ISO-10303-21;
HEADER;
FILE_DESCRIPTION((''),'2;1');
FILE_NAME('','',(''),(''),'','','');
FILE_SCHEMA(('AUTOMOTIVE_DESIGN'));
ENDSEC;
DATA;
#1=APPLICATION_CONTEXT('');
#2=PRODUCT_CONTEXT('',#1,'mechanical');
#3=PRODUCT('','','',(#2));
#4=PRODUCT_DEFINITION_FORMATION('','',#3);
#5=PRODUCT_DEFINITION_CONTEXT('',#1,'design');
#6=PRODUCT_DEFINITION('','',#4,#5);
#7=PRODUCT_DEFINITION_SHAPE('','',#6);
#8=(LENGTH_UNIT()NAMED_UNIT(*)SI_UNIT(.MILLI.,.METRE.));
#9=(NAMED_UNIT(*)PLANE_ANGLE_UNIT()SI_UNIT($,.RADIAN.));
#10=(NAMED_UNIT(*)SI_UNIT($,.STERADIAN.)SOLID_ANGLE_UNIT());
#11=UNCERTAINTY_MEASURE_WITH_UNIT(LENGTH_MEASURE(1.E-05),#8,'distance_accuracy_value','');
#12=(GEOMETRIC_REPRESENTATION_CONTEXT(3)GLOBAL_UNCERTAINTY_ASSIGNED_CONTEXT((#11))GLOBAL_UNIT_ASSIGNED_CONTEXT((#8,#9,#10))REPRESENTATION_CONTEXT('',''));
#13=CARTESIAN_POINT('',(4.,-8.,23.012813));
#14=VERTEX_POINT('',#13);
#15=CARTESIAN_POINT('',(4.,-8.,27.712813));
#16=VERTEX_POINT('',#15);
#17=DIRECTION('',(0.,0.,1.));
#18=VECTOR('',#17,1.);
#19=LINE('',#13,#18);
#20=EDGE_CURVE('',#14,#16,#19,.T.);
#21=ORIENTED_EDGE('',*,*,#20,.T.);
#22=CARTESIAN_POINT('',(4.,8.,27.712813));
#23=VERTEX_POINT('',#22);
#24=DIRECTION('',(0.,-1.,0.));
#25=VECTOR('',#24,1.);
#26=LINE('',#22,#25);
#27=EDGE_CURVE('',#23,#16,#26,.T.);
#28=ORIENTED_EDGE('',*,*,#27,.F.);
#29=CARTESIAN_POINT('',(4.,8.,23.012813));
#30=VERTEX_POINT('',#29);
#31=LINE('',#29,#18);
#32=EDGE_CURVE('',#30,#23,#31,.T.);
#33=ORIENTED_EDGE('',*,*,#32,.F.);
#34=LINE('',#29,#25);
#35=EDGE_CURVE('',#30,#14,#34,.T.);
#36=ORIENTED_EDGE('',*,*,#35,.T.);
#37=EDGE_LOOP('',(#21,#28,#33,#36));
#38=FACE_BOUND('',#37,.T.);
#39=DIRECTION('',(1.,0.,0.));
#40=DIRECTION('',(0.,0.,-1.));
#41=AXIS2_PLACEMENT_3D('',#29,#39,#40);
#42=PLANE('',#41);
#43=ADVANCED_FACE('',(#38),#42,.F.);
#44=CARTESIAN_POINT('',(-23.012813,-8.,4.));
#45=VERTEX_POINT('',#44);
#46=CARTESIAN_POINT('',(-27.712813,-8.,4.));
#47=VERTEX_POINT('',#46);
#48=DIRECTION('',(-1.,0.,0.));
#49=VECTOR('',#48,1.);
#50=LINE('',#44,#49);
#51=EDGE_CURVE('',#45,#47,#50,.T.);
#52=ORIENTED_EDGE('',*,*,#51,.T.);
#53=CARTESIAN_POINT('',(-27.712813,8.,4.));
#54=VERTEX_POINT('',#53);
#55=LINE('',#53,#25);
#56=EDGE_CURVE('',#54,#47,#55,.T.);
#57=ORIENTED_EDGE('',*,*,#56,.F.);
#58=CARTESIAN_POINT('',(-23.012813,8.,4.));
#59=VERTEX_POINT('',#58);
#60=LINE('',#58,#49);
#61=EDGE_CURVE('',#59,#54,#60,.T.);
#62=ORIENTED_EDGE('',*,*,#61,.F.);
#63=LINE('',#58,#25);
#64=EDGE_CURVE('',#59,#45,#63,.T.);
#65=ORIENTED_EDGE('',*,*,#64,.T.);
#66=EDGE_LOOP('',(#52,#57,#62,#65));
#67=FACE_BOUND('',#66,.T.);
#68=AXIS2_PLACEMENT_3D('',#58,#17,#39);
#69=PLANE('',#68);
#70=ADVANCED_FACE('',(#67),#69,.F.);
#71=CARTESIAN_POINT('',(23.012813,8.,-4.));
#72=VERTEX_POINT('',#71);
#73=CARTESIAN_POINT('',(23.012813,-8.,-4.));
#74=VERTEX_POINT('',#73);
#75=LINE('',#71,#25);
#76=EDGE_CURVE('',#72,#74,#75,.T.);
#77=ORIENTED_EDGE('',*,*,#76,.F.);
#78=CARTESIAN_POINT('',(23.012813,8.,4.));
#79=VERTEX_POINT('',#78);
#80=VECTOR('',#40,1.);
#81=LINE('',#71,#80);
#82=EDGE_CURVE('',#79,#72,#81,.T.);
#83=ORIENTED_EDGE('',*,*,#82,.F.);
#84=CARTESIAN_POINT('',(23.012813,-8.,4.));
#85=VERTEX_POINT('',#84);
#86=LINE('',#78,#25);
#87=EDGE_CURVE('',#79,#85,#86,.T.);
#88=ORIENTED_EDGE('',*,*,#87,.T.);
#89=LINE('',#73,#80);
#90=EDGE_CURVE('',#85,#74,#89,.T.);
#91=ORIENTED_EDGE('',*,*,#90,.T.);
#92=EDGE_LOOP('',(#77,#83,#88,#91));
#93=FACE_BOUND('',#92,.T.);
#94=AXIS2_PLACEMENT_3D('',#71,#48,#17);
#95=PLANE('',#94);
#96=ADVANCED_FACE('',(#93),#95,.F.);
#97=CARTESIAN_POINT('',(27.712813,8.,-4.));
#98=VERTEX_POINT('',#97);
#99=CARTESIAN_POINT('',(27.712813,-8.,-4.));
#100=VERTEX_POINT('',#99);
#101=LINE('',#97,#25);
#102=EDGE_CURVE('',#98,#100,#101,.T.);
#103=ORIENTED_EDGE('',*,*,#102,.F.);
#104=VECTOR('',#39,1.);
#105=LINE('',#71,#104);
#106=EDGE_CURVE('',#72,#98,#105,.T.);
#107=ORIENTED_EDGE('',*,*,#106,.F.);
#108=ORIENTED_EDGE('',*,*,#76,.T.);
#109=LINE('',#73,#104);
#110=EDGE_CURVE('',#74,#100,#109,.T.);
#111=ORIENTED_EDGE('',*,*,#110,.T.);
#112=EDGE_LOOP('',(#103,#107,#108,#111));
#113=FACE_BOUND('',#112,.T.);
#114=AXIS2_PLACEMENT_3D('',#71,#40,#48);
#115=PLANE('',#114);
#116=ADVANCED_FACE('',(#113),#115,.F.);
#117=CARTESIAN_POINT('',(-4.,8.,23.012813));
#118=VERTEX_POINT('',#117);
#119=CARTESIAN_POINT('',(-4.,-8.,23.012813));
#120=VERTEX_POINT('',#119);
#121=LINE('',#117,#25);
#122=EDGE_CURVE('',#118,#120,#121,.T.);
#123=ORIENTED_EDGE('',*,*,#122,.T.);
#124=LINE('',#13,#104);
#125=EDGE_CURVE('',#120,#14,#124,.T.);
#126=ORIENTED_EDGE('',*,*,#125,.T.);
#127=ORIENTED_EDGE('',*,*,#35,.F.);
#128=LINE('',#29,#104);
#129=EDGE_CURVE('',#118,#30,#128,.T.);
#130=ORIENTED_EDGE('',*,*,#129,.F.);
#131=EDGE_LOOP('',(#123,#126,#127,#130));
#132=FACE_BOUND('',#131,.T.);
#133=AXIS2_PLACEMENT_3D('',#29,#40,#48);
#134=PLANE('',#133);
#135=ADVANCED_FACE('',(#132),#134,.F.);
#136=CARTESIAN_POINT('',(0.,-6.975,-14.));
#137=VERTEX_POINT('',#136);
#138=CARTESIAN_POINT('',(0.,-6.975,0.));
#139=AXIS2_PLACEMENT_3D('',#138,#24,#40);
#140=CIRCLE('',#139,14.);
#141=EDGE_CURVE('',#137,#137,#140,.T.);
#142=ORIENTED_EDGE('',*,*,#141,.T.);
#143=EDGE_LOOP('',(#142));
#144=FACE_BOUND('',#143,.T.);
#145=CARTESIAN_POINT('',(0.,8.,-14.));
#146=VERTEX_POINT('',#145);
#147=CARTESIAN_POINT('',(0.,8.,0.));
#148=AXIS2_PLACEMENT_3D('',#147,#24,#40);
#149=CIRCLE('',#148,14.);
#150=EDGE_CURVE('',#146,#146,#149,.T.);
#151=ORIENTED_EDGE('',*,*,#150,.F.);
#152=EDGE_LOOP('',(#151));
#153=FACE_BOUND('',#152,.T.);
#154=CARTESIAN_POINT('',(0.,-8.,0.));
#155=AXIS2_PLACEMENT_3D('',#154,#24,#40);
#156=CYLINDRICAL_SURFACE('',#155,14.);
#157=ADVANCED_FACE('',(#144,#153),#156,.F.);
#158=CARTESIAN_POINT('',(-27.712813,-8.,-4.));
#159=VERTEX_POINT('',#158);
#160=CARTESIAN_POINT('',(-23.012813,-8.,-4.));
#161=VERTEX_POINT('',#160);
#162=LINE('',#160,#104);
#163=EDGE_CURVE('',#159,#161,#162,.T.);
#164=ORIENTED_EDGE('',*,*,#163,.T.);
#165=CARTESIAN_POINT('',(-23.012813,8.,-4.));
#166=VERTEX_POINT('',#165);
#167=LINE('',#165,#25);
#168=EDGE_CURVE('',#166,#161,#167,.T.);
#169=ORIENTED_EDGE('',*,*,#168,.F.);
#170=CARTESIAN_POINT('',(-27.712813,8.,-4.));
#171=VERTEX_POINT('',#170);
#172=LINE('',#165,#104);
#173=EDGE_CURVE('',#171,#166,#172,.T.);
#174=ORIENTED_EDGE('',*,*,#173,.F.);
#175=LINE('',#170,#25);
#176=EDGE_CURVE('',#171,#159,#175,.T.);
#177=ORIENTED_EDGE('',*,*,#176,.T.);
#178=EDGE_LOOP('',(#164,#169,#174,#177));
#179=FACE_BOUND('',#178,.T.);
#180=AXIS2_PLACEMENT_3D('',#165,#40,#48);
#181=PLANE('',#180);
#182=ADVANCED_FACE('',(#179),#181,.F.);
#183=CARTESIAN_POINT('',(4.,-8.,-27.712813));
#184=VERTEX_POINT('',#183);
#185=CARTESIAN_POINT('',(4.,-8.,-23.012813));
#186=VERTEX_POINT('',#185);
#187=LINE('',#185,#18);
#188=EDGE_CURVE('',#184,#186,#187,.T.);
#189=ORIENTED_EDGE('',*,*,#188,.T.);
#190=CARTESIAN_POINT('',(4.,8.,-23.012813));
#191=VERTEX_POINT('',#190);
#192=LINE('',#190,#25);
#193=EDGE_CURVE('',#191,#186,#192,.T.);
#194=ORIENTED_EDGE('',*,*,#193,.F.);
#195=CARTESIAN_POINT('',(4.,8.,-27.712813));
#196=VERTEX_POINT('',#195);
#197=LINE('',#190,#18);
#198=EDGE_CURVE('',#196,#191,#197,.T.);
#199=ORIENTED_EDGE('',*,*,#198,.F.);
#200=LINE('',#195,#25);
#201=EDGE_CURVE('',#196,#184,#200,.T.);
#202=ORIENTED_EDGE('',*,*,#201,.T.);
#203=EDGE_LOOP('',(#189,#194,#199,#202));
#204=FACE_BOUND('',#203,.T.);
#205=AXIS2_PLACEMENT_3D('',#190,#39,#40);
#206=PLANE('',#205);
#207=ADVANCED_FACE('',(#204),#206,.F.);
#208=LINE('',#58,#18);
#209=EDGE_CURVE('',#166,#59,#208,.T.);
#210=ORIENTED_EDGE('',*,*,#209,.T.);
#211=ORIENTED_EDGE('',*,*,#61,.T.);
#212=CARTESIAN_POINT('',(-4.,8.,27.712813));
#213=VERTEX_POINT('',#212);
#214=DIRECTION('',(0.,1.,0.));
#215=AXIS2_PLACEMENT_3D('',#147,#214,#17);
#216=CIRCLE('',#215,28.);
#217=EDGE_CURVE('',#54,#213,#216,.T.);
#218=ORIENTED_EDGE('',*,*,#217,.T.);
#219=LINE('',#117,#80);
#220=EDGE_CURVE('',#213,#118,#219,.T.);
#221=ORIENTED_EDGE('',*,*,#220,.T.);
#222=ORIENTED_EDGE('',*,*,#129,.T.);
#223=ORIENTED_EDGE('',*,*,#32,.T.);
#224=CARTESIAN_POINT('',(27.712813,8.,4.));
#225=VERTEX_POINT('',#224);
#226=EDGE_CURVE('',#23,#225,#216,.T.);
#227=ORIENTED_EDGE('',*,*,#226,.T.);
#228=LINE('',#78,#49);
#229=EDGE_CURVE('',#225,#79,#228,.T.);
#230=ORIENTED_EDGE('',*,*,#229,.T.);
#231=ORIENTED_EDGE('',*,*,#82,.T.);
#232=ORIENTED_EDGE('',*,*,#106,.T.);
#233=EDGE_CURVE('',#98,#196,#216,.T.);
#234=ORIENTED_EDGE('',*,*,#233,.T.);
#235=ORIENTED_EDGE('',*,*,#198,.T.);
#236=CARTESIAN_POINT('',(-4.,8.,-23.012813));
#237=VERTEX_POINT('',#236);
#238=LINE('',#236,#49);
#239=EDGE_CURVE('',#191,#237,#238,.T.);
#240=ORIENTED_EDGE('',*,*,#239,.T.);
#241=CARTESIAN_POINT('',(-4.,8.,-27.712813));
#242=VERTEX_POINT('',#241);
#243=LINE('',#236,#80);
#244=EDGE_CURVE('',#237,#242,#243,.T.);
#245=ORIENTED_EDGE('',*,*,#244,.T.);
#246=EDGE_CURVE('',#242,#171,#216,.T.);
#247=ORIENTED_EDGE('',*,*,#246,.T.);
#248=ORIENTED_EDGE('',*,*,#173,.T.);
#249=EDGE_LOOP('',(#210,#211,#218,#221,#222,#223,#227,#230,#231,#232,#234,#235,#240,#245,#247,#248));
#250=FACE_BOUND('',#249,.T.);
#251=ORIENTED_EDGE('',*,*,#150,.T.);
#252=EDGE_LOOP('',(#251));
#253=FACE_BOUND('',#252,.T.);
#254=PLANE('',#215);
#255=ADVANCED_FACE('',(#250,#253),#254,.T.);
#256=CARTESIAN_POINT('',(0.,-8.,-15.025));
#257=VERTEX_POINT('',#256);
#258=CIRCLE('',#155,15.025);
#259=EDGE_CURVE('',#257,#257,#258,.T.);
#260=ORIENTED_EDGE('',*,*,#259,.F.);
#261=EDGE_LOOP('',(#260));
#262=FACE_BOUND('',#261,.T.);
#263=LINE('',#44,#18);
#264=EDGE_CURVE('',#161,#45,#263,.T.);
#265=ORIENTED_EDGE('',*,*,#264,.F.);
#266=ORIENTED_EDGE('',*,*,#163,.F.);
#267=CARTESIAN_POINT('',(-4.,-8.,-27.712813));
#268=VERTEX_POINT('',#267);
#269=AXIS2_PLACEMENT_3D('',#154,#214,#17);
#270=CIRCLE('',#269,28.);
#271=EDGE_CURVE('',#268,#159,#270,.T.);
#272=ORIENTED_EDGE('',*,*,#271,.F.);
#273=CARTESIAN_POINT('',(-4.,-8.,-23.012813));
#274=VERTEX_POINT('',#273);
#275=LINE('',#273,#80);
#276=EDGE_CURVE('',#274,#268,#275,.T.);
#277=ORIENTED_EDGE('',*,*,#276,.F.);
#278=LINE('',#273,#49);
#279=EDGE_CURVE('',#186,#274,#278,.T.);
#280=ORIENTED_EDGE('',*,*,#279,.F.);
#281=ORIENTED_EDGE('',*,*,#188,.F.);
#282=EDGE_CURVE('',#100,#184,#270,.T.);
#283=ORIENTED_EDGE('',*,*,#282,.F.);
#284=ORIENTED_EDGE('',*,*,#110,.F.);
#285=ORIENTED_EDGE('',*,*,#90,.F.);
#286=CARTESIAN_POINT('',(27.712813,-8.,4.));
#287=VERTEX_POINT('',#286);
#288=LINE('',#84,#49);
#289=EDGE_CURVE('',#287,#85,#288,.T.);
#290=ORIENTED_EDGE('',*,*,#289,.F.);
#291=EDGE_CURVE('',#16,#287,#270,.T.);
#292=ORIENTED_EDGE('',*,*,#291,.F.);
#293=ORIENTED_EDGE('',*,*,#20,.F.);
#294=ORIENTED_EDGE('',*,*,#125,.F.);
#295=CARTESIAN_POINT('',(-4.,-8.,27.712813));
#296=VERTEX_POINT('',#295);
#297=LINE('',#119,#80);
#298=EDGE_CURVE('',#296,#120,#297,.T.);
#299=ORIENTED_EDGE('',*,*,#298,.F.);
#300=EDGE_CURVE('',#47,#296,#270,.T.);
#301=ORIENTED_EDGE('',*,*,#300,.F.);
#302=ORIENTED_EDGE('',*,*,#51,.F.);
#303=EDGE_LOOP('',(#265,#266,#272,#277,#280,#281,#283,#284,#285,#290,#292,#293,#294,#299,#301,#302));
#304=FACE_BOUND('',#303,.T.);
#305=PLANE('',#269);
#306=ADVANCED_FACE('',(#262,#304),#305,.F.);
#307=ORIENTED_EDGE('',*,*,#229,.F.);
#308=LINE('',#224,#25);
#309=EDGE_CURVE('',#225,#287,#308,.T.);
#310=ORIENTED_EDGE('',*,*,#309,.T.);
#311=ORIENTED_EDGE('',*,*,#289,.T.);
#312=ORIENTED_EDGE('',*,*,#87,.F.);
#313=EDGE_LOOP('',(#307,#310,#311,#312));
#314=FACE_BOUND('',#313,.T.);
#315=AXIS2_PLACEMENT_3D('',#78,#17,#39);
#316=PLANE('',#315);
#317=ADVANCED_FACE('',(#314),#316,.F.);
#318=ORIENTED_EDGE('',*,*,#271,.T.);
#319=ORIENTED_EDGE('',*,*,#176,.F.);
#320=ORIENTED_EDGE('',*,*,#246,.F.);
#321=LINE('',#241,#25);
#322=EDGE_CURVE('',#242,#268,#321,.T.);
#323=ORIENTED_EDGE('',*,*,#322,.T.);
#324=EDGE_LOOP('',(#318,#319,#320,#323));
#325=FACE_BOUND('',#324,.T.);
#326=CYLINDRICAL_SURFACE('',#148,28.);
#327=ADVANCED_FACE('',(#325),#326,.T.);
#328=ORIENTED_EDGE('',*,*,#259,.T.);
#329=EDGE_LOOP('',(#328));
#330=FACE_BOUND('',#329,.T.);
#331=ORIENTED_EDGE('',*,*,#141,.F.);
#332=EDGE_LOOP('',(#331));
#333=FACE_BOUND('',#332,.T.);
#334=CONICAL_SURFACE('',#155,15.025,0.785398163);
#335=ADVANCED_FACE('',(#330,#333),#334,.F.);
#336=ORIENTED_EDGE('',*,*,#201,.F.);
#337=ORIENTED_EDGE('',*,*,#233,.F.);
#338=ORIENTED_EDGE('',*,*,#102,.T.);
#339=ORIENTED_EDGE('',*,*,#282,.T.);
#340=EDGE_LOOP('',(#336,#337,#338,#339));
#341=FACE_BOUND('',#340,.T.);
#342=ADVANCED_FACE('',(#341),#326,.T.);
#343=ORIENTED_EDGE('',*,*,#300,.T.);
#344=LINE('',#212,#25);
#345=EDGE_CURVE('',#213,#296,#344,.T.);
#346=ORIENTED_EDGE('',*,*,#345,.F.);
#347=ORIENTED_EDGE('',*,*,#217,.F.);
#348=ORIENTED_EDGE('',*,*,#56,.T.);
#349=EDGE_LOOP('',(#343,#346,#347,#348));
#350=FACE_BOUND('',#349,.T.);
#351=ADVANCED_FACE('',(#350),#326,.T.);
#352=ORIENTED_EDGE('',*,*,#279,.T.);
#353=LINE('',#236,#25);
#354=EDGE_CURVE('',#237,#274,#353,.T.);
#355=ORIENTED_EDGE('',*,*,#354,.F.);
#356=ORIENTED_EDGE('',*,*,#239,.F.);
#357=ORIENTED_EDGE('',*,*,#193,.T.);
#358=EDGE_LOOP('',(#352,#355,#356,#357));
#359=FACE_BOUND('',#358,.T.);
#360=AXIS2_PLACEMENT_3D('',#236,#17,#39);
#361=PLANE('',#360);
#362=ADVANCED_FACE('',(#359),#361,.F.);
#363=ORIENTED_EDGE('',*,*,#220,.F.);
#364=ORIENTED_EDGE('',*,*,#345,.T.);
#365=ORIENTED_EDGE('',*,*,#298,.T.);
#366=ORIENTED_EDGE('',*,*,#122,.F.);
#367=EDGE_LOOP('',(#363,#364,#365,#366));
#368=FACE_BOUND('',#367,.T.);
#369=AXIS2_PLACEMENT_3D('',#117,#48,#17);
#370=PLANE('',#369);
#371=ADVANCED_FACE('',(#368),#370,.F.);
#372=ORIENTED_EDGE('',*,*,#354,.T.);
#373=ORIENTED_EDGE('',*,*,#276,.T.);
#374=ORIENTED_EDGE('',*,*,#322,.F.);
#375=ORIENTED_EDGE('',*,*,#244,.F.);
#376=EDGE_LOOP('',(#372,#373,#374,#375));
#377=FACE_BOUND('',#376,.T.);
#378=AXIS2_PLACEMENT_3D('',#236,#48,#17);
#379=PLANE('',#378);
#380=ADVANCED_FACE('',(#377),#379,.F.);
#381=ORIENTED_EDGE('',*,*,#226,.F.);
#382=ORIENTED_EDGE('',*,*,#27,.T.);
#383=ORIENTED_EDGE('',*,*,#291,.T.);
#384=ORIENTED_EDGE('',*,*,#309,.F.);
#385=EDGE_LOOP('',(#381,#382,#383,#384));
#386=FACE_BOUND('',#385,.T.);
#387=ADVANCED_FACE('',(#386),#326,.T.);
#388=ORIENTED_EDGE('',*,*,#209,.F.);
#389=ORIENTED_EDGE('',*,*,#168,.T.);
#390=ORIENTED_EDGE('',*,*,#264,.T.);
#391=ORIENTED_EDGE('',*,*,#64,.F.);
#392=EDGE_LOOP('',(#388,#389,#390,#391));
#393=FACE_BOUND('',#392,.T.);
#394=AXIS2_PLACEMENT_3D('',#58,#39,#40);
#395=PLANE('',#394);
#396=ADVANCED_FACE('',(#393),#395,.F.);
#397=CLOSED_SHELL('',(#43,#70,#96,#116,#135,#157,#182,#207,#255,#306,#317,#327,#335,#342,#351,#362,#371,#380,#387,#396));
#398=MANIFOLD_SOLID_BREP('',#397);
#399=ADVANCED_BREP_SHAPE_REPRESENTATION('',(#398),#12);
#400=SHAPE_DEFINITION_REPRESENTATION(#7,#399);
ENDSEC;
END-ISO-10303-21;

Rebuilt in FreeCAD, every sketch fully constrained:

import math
import FreeCAD as App
import Part
import Sketcher
from FreeCAD import Vector

doc = App.newDocument("Part")
params = doc.addObject("Spreadsheet::Sheet", "Params")
for row, (alias, value) in enumerate([
    ("sketch1_radius", "28 mm"),
    ("sketch1_width", "8 mm"),
    ("sketch1_width2", "4.7 mm"),
    ("pad1_length", "16 mm"),
    ("sketch2_diameter", "28 mm"),
    ("hole_diameter", "28 mm"),
    ("hole_depth", "16 mm"),
    ("hole_csink_diameter", "30.05 mm"),
], start=1):
    params.set(f"A{row}", alias)
    params.set(f"B{row}", "=" + value)
    params.setAlias(f"B{row}", alias)

body = doc.addObject("PartDesign::Body", "Body")

# Sketch on XZ plane
sketch1 = body.newObject("Sketcher::SketchObject", "Sketch")
sketch1.AttachmentSupport = (doc.getObject("XZ_Plane"), [""])
sketch1.MapMode = "FlatFace"
sketch1.addGeometry(Part.LineSegment(Vector(4, 23, 0), Vector(4, 27.7, 0)), False)
sketch1.addGeometry(Part.ArcOfCircle(Part.Circle(Vector(0, 0, 0), Vector(0, 0, 1), 28), math.radians(8), math.radians(82)), False)
sketch1.addGeometry(Part.LineSegment(Vector(27.7, 4, 0), Vector(23, 4, 0)), False)
sketch1.addGeometry(Part.LineSegment(Vector(23, 4, 0), Vector(23, -4, 0)), False)
sketch1.addGeometry(Part.LineSegment(Vector(23, -4, 0), Vector(27.7, -4, 0)), False)
sketch1.addGeometry(Part.ArcOfCircle(Part.Circle(Vector(0, 0, 0), Vector(0, 0, 1), 28), math.radians(-82), math.radians(-8)), False)
sketch1.addGeometry(Part.LineSegment(Vector(4, -27.7, 0), Vector(4, -23, 0)), False)
sketch1.addGeometry(Part.LineSegment(Vector(4, -23, 0), Vector(-4, -23, 0)), False)
sketch1.addGeometry(Part.LineSegment(Vector(-4, -23, 0), Vector(-4, -27.7, 0)), False)
sketch1.addGeometry(Part.ArcOfCircle(Part.Circle(Vector(0, 0, 0), Vector(0, 0, 1), 28), math.radians(-172), math.radians(-98)), False)
sketch1.addGeometry(Part.LineSegment(Vector(-27.7, -4, 0), Vector(-23, -4, 0)), False)
sketch1.addGeometry(Part.LineSegment(Vector(-23, -4, 0), Vector(-23, 4, 0)), False)
sketch1.addGeometry(Part.LineSegment(Vector(-23, 4, 0), Vector(-27.7, 4, 0)), False)
sketch1.addGeometry(Part.ArcOfCircle(Part.Circle(Vector(0, 0, 0), Vector(0, 0, 1), 28), math.radians(98), math.radians(172)), False)
sketch1.addGeometry(Part.LineSegment(Vector(-4, 27.7, 0), Vector(-4, 23, 0)), False)
sketch1.addGeometry(Part.LineSegment(Vector(-4, 23, 0), Vector(4, 23, 0)), False)
sketch1.addConstraint(Sketcher.Constraint("Coincident", 0, 2, 1, 2))
sketch1.addConstraint(Sketcher.Constraint("Coincident", 1, 1, 2, 1))
sketch1.addConstraint(Sketcher.Constraint("Coincident", 2, 2, 3, 1))
sketch1.addConstraint(Sketcher.Constraint("Coincident", 3, 2, 4, 1))
sketch1.addConstraint(Sketcher.Constraint("Coincident", 4, 2, 5, 2))
sketch1.addConstraint(Sketcher.Constraint("Coincident", 5, 1, 6, 1))
sketch1.addConstraint(Sketcher.Constraint("Coincident", 6, 2, 7, 1))
sketch1.addConstraint(Sketcher.Constraint("Coincident", 7, 2, 8, 1))
sketch1.addConstraint(Sketcher.Constraint("Coincident", 8, 2, 9, 2))
sketch1.addConstraint(Sketcher.Constraint("Coincident", 9, 1, 10, 1))
sketch1.addConstraint(Sketcher.Constraint("Coincident", 10, 2, 11, 1))
sketch1.addConstraint(Sketcher.Constraint("Coincident", 11, 2, 12, 1))
sketch1.addConstraint(Sketcher.Constraint("Coincident", 12, 2, 13, 2))
sketch1.addConstraint(Sketcher.Constraint("Coincident", 13, 1, 14, 1))
sketch1.addConstraint(Sketcher.Constraint("Coincident", 14, 2, 15, 1))
sketch1.addConstraint(Sketcher.Constraint("Coincident", 15, 2, 0, 1))
sketch1.addConstraint(Sketcher.Constraint("Vertical", 0))
sketch1.addConstraint(Sketcher.Constraint("Horizontal", 2))
sketch1.addConstraint(Sketcher.Constraint("Vertical", 3))
sketch1.addConstraint(Sketcher.Constraint("Horizontal", 4))
sketch1.addConstraint(Sketcher.Constraint("Vertical", 6))
sketch1.addConstraint(Sketcher.Constraint("Horizontal", 7))
sketch1.addConstraint(Sketcher.Constraint("Vertical", 8))
sketch1.addConstraint(Sketcher.Constraint("Horizontal", 10))
sketch1.addConstraint(Sketcher.Constraint("Vertical", 11))
sketch1.addConstraint(Sketcher.Constraint("Horizontal", 12))
sketch1.addConstraint(Sketcher.Constraint("Vertical", 14))
sketch1.addConstraint(Sketcher.Constraint("Horizontal", 15))
sketch1.addConstraint(Sketcher.Constraint("Coincident", 1, 3, -1, 1))
sketch1.addConstraint(Sketcher.Constraint("Coincident", 5, 3, -1, 1))
sketch1.addConstraint(Sketcher.Constraint("Coincident", 9, 3, -1, 1))
sketch1.addConstraint(Sketcher.Constraint("Coincident", 13, 3, -1, 1))
sketch1.addConstraint(Sketcher.Constraint("Equal", 1, 5))
sketch1.addConstraint(Sketcher.Constraint("Equal", 5, 9))
sketch1.addConstraint(Sketcher.Constraint("Equal", 9, 13))
sketch1.addConstraint(Sketcher.Constraint("Symmetric", 2, 2, 10, 2, -1, 1))
sketch1.addConstraint(Sketcher.Constraint("Symmetric", 6, 2, 14, 2, -1, 1))
sketch1.addConstraint(Sketcher.Constraint("Horizontal", 5, 1, 8, 2))
sketch1.addConstraint(Sketcher.Constraint("Horizontal", 4, 2, 9, 1))
sketch1.addConstraint(Sketcher.Constraint("Horizontal", 2, 2, 11, 2))
sketch1.addConstraint(Sketcher.Constraint("Horizontal", 0, 2, 13, 1))
sketch1.addConstraint(Sketcher.Constraint("Equal", 12, 0))
sketch1.addConstraint(Sketcher.Constraint("Equal", 15, 3))
sketch1.addConstraint(Sketcher.Constraint("Radius", 1, 28.0))
sketch1.addConstraint(Sketcher.Constraint("DistanceX", 7, 2, 7, 1, 8.0))
sketch1.addConstraint(Sketcher.Constraint("DistanceX", 2, 2, 2, 1, 4.7))
sketch1.setExpression("Constraints[43]", "Params.sketch1_radius")
sketch1.setExpression("Constraints[44]", "Params.sketch1_width")
sketch1.setExpression("Constraints[45]", "Params.sketch1_width2")
pad1 = body.newObject("PartDesign::Pad", "Pad")
pad1.Profile = sketch1
pad1.setExpression("Length", "Params.pad1_length")
pad1.Midplane = True

# Sketch on XZ plane
sketch2 = body.newObject("Sketcher::SketchObject", "Sketch001")
sketch2.AttachmentSupport = (doc.getObject("XZ_Plane"), [""])
sketch2.MapMode = "FlatFace"
sketch2.AttachmentOffset = App.Placement(Vector(0, 0, 8), App.Rotation())
sketch2.addGeometry(Part.Circle(Vector(0, 0, 0), Vector(0, 0, 1), 14), False)
sketch2.addConstraint(Sketcher.Constraint("Coincident", 0, 3, -1, 1))
sketch2.addConstraint(Sketcher.Constraint("Diameter", 0, 28.0))
sketch2.setExpression("Constraints[1]", "Params.sketch2_diameter")
doc.recompute()
hole = body.newObject("PartDesign::Hole", "Hole")
hole.Profile = sketch2
hole.ThreadType = "None"
hole.setExpression("Diameter", "Params.hole_diameter")
hole.DepthType = "Dimension"
hole.setExpression("Depth", "Params.hole_depth")
hole.DrillPoint = "Angled"
hole.DrillPointAngle = 118
hole.HoleCutType = "Countersink"
hole.setExpression("HoleCutDiameter", "Params.hole_csink_diameter")
hole.HoleCutCountersinkAngle = 90

doc.recompute()
